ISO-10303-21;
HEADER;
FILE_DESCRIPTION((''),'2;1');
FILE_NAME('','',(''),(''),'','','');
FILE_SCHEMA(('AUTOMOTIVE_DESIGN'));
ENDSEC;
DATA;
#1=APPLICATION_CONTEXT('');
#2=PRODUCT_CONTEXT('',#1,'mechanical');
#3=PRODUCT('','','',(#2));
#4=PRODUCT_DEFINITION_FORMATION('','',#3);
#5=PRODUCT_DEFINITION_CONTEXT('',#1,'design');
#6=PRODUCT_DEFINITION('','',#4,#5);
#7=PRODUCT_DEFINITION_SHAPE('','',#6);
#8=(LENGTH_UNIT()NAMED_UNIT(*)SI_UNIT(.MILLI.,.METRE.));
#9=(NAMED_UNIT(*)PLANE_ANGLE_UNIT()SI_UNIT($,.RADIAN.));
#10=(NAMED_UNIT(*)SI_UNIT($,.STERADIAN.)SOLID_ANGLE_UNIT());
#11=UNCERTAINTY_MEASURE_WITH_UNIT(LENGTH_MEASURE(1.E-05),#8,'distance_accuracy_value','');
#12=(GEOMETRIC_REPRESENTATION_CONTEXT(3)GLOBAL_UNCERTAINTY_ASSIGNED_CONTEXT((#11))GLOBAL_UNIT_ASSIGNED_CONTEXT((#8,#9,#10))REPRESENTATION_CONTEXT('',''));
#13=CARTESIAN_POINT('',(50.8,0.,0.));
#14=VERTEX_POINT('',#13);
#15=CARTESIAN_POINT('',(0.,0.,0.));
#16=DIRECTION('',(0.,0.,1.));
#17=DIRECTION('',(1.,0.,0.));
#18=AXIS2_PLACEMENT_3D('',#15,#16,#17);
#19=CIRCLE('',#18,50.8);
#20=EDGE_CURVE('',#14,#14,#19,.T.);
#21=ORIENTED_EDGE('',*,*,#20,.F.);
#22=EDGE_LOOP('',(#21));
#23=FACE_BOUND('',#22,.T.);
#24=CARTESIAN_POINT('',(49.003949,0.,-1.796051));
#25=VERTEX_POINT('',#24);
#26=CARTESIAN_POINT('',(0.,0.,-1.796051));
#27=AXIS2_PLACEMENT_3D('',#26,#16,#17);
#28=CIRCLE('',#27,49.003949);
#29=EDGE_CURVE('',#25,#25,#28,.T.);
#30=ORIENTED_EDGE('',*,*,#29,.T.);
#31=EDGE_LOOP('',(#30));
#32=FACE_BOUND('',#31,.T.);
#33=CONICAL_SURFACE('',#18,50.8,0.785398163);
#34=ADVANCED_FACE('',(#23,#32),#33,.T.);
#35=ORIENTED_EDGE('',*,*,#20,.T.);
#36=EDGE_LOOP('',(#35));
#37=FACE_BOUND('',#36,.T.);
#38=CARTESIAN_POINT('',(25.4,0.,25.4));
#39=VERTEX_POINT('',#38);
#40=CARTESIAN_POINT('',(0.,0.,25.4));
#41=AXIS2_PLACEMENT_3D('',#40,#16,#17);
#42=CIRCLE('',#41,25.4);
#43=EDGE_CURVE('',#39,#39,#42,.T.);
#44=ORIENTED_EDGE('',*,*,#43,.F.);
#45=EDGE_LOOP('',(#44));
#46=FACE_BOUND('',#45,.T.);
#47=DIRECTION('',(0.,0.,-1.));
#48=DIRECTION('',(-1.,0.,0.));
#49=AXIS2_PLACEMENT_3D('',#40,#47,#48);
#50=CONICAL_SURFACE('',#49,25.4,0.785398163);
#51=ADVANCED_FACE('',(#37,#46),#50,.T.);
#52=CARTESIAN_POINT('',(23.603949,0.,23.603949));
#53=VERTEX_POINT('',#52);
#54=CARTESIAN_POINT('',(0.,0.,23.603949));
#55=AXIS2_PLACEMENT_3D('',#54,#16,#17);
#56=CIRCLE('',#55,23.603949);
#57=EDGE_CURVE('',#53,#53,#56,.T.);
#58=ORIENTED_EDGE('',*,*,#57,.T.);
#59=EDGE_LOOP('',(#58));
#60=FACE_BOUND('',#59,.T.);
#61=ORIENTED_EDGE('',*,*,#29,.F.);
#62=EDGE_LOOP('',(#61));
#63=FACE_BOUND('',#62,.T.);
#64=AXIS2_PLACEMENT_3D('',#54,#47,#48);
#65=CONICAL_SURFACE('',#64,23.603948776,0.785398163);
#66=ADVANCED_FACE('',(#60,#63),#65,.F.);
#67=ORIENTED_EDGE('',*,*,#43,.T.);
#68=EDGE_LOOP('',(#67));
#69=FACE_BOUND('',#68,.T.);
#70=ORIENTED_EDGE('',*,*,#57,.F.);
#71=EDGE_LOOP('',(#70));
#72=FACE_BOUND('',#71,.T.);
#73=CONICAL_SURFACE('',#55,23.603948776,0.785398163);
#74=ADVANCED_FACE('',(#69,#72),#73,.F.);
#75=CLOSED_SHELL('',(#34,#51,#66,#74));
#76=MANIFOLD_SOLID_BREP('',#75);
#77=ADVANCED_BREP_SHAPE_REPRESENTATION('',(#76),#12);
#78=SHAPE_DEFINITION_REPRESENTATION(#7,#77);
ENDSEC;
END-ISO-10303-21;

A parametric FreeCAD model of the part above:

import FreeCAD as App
import Part
import Sketcher
Q = App.Units.Quantity


def add_polygon(sketch, points):
    """Adds a closed chain of lines whose ends are joined by coincident constraints."""
    first, n = sketch.GeometryCount, len(points)
    for a, b in zip(points, points[1:] + points[:1]):
        sketch.addGeometry(Part.LineSegment(App.Vector(*a, 0), App.Vector(*b, 0)), False)
    for i in range(n):
        sketch.addConstraint(Sketcher.Constraint("Coincident", first + i, 2, first + (i + 1) % n, 1))

doc = App.newDocument("Part")
body = doc.addObject("PartDesign::Body", "Body")

# Sketch on YZ plane
sketch1 = doc.addObject("Sketcher::SketchObject", "Sketch")
body.addObject(sketch1)
sketch1.AttachmentSupport = (doc.YZ_Plane, [""])
sketch1.MapMode = "FlatFace"
add_polygon(sketch1, [(50.8, 0), (25.4, 25.4), (23.603949, 23.603949), (49.003949, -1.796051)])  # lines 0-3
sketch1.addConstraint([
    Sketcher.Constraint("PointOnObject", 3, 2, -1),
    Sketcher.Constraint("Perpendicular", 0, 1),
    Sketcher.Constraint("Perpendicular", 1, 2),
    Sketcher.Constraint("Perpendicular", 2, 3),
    Sketcher.Constraint("DistanceX", -1, 1, 0, 2, Q("1 in")),
    Sketcher.Constraint("DistanceY", -1, 1, 0, 2, Q("1 in")),
    Sketcher.Constraint("DistanceX", -1, 1, 3, 2, Q("2 in")),
    Sketcher.Constraint("Distance", 1, Q("0.1 in")),
])
revolution = doc.addObject("PartDesign::Revolution", "Revolution")
body.addObject(revolution)
revolution.Profile = sketch1
revolution.ReferenceAxis = (sketch1, ["V_Axis"])
revolution.Angle = 360

doc.recompute()
